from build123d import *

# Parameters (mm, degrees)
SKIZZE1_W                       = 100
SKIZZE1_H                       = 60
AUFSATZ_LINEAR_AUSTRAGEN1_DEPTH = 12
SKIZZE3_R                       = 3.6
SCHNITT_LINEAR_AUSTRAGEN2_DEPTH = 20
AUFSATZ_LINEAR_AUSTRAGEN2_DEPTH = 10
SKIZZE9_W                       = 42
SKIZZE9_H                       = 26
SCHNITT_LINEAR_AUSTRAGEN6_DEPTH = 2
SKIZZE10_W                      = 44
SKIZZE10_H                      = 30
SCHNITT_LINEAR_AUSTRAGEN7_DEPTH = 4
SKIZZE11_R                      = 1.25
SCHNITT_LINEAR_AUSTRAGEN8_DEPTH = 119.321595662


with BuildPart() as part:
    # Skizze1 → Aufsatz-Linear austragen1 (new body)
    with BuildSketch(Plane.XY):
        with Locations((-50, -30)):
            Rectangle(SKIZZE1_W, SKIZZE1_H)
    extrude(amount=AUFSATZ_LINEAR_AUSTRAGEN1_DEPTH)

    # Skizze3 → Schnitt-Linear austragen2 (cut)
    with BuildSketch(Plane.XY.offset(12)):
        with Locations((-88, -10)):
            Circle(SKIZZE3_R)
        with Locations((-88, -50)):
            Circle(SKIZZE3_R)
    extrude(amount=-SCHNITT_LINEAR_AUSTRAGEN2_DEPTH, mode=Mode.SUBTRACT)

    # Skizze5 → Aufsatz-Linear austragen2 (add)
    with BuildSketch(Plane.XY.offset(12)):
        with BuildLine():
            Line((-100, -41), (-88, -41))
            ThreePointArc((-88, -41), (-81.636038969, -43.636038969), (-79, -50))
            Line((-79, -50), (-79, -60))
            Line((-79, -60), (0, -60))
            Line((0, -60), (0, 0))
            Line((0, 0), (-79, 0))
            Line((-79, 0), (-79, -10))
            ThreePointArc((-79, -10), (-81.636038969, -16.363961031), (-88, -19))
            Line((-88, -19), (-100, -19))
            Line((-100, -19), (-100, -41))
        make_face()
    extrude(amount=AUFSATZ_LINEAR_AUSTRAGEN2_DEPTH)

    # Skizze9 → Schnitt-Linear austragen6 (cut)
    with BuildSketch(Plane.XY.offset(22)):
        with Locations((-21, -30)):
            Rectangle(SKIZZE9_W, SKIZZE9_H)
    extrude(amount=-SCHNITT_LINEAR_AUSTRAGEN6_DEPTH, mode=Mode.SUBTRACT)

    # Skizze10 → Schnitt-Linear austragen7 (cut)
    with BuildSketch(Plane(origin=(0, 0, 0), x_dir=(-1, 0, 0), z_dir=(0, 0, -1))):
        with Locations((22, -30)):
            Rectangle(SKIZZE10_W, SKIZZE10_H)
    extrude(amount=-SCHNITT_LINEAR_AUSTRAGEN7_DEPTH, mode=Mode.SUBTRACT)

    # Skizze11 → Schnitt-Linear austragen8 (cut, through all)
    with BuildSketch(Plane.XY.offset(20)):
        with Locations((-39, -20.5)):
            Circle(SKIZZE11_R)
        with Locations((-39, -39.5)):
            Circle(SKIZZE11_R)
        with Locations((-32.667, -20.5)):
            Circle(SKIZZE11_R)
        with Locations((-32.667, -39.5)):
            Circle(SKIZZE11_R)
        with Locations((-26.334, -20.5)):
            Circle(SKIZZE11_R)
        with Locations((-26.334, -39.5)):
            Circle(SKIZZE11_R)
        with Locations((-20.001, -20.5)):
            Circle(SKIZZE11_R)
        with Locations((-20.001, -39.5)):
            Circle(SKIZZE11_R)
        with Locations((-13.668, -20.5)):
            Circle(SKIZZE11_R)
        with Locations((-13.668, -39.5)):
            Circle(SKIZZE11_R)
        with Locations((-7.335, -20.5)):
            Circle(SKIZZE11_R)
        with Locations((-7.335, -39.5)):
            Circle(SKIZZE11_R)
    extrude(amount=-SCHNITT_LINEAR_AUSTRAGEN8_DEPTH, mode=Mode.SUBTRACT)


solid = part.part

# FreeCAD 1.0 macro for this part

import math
import FreeCAD as App
import Part
import Sketcher
from FreeCAD import Vector
Q = App.Units.Quantity

doc = App.newDocument("Part")
body = doc.addObject("PartDesign::Body", "Body")

# Sketch on XY plane
sketch1 = body.newObject("Sketcher::SketchObject", "Sketch")
sketch1.AttachmentSupport = (doc.getObject("XY_Plane"), [""])
sketch1.MapMode = "FlatFace"
sketch1.addGeometry([
    Part.LineSegment(Vector(-100, 0, 0), Vector(-100, -60, 0)),
    Part.LineSegment(Vector(-100, -60, 0), Vector(0, -60, 0)),
    Part.LineSegment(Vector(0, -60, 0), Vector(0, 0, 0)),
    Part.LineSegment(Vector(0, 0, 0), Vector(-100, 0, 0)),
], False)
sketch1.addConstraint([
    Sketcher.Constraint("Coincident", 0, 2, 1, 1),
    Sketcher.Constraint("Coincident", 1, 2, 2, 1),
    Sketcher.Constraint("Coincident", 2, 2, 3, 1),
    Sketcher.Constraint("Coincident", 3, 2, 0, 1),
    Sketcher.Constraint("Vertical", 0),
    Sketcher.Constraint("Horizontal", 1),
    Sketcher.Constraint("Vertical", 2),
    Sketcher.Constraint("Horizontal", 3),
    Sketcher.Constraint("Coincident", 2, 2, -1, 1),
    Sketcher.Constraint("DistanceX", 1, 1, 1, 2, Q("100 mm")),
    Sketcher.Constraint("DistanceY", 0, 2, 0, 1, Q("60 mm")),
])
pad1 = body.newObject("PartDesign::Pad", "Pad")
pad1.Profile = sketch1
pad1.Length = 12

# Sketch on XY plane
sketch2 = body.newObject("Sketcher::SketchObject", "Sketch001")
sketch2.AttachmentSupport = (doc.getObject("XY_Plane"), [""])
sketch2.MapMode = "FlatFace"
sketch2.AttachmentOffset = App.Placement(Vector(0, 0, 12), App.Rotation())
sketch2.addGeometry([
    Part.Circle(Vector(-88, -10, 0), Vector(0, 0, 1), 3.6),
    Part.Circle(Vector(-88, -50, 0), Vector(0, 0, 1), 3.6),
], False)
sketch2.addConstraint([
    Sketcher.Constraint("Equal", 0, 1),
    Sketcher.Constraint("Vertical", 0, 3, 1, 3),
    Sketcher.Constraint("Diameter", 0, Q("7.2 mm")),
    Sketcher.Constraint("DistanceX", 0, 3, -1, 1, Q("88 mm")),
    Sketcher.Constraint("DistanceY", 0, 3, -1, 1, Q("10 mm")),
    Sketcher.Constraint("DistanceY", 1, 3, -1, 1, Q("50 mm")),
])
pocket1 = body.newObject("PartDesign::Pocket", "Pocket")
pocket1.Profile = sketch2
pocket1.Length = 20

# Sketch on XY plane
sketch3 = body.newObject("Sketcher::SketchObject", "Sketch002")
sketch3.AttachmentSupport = (doc.getObject("XY_Plane"), [""])
sketch3.MapMode = "FlatFace"
sketch3.AttachmentOffset = App.Placement(Vector(0, 0, 12), App.Rotation())
sketch3.addGeometry([
    Part.LineSegment(Vector(-100, -41, 0), Vector(-88, -41, 0)),  # 0
    Part.ArcOfCircle(Part.Circle(Vector(-88, -50, 0), Vector(0, 0, 1), 9), math.radians(0), math.radians(90)),  # 1
    Part.LineSegment(Vector(-79, -50, 0), Vector(-79, -60, 0)),  # 2
    Part.LineSegment(Vector(-79, -60, 0), Vector(0, -60, 0)),  # 3
    Part.LineSegment(Vector(0, -60, 0), Vector(0, 0, 0)),  # 4
    Part.LineSegment(Vector(0, 0, 0), Vector(-79, 0, 0)),  # 5
    Part.LineSegment(Vector(-79, 0, 0), Vector(-79, -10, 0)),  # 6
    Part.ArcOfCircle(Part.Circle(Vector(-88, -10, 0), Vector(0, 0, 1), 9), math.radians(-90), math.radians(0)),  # 7
    Part.LineSegment(Vector(-88, -19, 0), Vector(-100, -19, 0)),  # 8
    Part.LineSegment(Vector(-100, -19, 0), Vector(-100, -41, 0)),  # 9
], False)
sketch3.addConstraint([
    Sketcher.Constraint("Tangent", 0, 2, 1, 2),
    Sketcher.Constraint("Tangent", 1, 1, 2, 1),
    Sketcher.Constraint("Coincident", 2, 2, 3, 1),
    Sketcher.Constraint("Coincident", 3, 2, 4, 1),
    Sketcher.Constraint("Coincident", 4, 2, 5, 1),
    Sketcher.Constraint("Coincident", 5, 2, 6, 1),
    Sketcher.Constraint("Tangent", 6, 2, 7, 2),
    Sketcher.Constraint("Tangent", 7, 1, 8, 1),
    Sketcher.Constraint("Coincident", 8, 2, 9, 1),
    Sketcher.Constraint("Coincident", 9, 2, 0, 1),
    Sketcher.Constraint("Horizontal", 0),
    Sketcher.Constraint("Vertical", 2),
    Sketcher.Constraint("Horizontal", 3),
    Sketcher.Constraint("Vertical", 4),
    Sketcher.Constraint("Horizontal", 5),
    Sketcher.Constraint("Vertical", 6),
    Sketcher.Constraint("Horizontal", 8),
    Sketcher.Constraint("Vertical", 9),
    Sketcher.Constraint("Coincident", 4, 2, -1, 1),
    Sketcher.Constraint("Equal", 1, 7),
    Sketcher.Constraint("Vertical", 1, 3, 7, 3),
    Sketcher.Constraint("Equal", 2, 6),
    Sketcher.Constraint("Radius", 1, Q("9 mm")),
    Sketcher.Constraint("DistanceX", 0, 1, 0, 2, Q("12 mm")),
    Sketcher.Constraint("DistanceX", 3, 1, 3, 2, Q("79 mm")),
    Sketcher.Constraint("DistanceY", 2, 2, 2, 1, Q("10 mm")),
    Sketcher.Constraint("DistanceY", 4, 1, 4, 2, Q("60 mm")),
])
pad2 = body.newObject("PartDesign::Pad", "Pad001")
pad2.Profile = sketch3
pad2.Length = 10

# Sketch on XY plane
sketch4 = body.newObject("Sketcher::SketchObject", "Sketch003")
sketch4.AttachmentSupport = (doc.getObject("XY_Plane"), [""])
sketch4.MapMode = "FlatFace"
sketch4.AttachmentOffset = App.Placement(Vector(0, 0, 22), App.Rotation())
sketch4.addGeometry([
    Part.LineSegment(Vector(-42, -17, 0), Vector(-42, -43, 0)),
    Part.LineSegment(Vector(-42, -43, 0), Vector(0, -43, 0)),
    Part.LineSegment(Vector(0, -43, 0), Vector(0, -17, 0)),
    Part.LineSegment(Vector(0, -17, 0), Vector(-42, -17, 0)),
], False)
sketch4.addConstraint([
    Sketcher.Constraint("Coincident", 0, 2, 1, 1),
    Sketcher.Constraint("Coincident", 1, 2, 2, 1),
    Sketcher.Constraint("Coincident", 2, 2, 3, 1),
    Sketcher.Constraint("Coincident", 3, 2, 0, 1),
    Sketcher.Constraint("Vertical", 0),
    Sketcher.Constraint("Horizontal", 1),
    Sketcher.Constraint("Vertical", 2),
    Sketcher.Constraint("Horizontal", 3),
    Sketcher.Constraint("PointOnObject", 1, 2, -2),
    Sketcher.Constraint("DistanceX", 1, 1, 1, 2, Q("42 mm")),
    Sketcher.Constraint("DistanceY", 0, 2, 0, 1, Q("26 mm")),
    Sketcher.Constraint("DistanceY", 0, 2, -1, 1, Q("43 mm")),
])
pocket2 = body.newObject("PartDesign::Pocket", "Pocket001")
pocket2.Profile = sketch4
pocket2.Length = 2

# Sketch on XY plane
sketch5 = body.newObject("Sketcher::SketchObject", "Sketch004")
sketch5.AttachmentSupport = (doc.getObject("XY_Plane"), [""])
sketch5.MapMode = "FlatFace"
sketch5.addGeometry([
    Part.LineSegment(Vector(0, -15, 0), Vector(0, -45, 0)),
    Part.LineSegment(Vector(0, -45, 0), Vector(-44, -45, 0)),
    Part.LineSegment(Vector(-44, -45, 0), Vector(-44, -15, 0)),
    Part.LineSegment(Vector(-44, -15, 0), Vector(0, -15, 0)),
], False)
sketch5.addConstraint([
    Sketcher.Constraint("Coincident", 0, 2, 1, 1),
    Sketcher.Constraint("Coincident", 1, 2, 2, 1),
    Sketcher.Constraint("Coincident", 2, 2, 3, 1),
    Sketcher.Constraint("Coincident", 3, 2, 0, 1),
    Sketcher.Constraint("Vertical", 0),
    Sketcher.Constraint("Horizontal", 1),
    Sketcher.Constraint("Vertical", 2),
    Sketcher.Constraint("Horizontal", 3),
    Sketcher.Constraint("PointOnObject", 0, 2, -2),
    Sketcher.Constraint("DistanceX", 1, 2, 1, 1, Q("44 mm")),
    Sketcher.Constraint("DistanceY", 0, 2, 0, 1, Q("30 mm")),
    Sketcher.Constraint("DistanceY", 0, 2, -1, 1, Q("45 mm")),
])
pocket3 = body.newObject("PartDesign::Pocket", "Pocket002")
pocket3.Profile = sketch5
pocket3.Length = 4
pocket3.Reversed = True

# Sketch on XY plane
sketch6 = body.newObject("Sketcher::SketchObject", "Sketch005")
sketch6.AttachmentSupport = (doc.getObject("XY_Plane"), [""])
sketch6.MapMode = "FlatFace"
sketch6.AttachmentOffset = App.Placement(Vector(0, 0, 20), App.Rotation())
sketch6.addGeometry([
    Part.Circle(Vector(-39, -20.5, 0), Vector(0, 0, 1), 1.2),  # 0
    Part.Circle(Vector(-39, -39.5, 0), Vector(0, 0, 1), 1.2),  # 1
    Part.Circle(Vector(-32.7, -20.5, 0), Vector(0, 0, 1), 1.2),  # 2
    Part.Circle(Vector(-32.7, -39.5, 0), Vector(0, 0, 1), 1.2),  # 3
    Part.Circle(Vector(-26.3, -20.5, 0), Vector(0, 0, 1), 1.2),  # 4
    Part.Circle(Vector(-26.3, -39.5, 0), Vector(0, 0, 1), 1.2),  # 5
    Part.Circle(Vector(-20, -20.5, 0), Vector(0, 0, 1), 1.2),  # 6
    Part.Circle(Vector(-20, -39.5, 0), Vector(0, 0, 1), 1.2),  # 7
    Part.Circle(Vector(-13.7, -20.5, 0), Vector(0, 0, 1), 1.2),  # 8
    Part.Circle(Vector(-13.7, -39.5, 0), Vector(0, 0, 1), 1.2),  # 9
    Part.Circle(Vector(-7.3, -20.5, 0), Vector(0, 0, 1), 1.2),  # 10
    Part.Circle(Vector(-7.3, -39.5, 0), Vector(0, 0, 1), 1.2),  # 11
], False)
sketch6.addConstraint([
    Sketcher.Constraint("Equal", 0, 1),
    Sketcher.Constraint("Equal", 1, 2),
    Sketcher.Constraint("Equal", 2, 3),
    Sketcher.Constraint("Equal", 3, 4),
    Sketcher.Constraint("Equal", 4, 5),
    Sketcher.Constraint("Equal", 5, 6),
    Sketcher.Constraint("Equal", 6, 7),
    Sketcher.Constraint("Equal", 7, 8),
    Sketcher.Constraint("Equal", 8, 9),
    Sketcher.Constraint("Equal", 9, 10),
    Sketcher.Constraint("Equal", 10, 11),
    Sketcher.Constraint("Horizontal", 0, 3, 2, 3),
    Sketcher.Constraint("Horizontal", 1, 3, 3, 3),
    Sketcher.Constraint("Horizontal", 2, 3, 4, 3),
    Sketcher.Constraint("Horizontal", 3, 3, 5, 3),
    Sketcher.Constraint("Horizontal", 4, 3, 6, 3),
    Sketcher.Constraint("Horizontal", 5, 3, 7, 3),
    Sketcher.Constraint("Horizontal", 6, 3, 8, 3),
    Sketcher.Constraint("Horizontal", 7, 3, 9, 3),
    Sketcher.Constraint("Horizontal", 8, 3, 10, 3),
    Sketcher.Constraint("Horizontal", 9, 3, 11, 3),
    Sketcher.Constraint("Vertical", 0, 3, 1, 3),
    Sketcher.Constraint("Vertical", 2, 3, 3, 3),
    Sketcher.Constraint("Vertical", 4, 3, 5, 3),
    Sketcher.Constraint("Vertical", 6, 3, 7, 3),
    Sketcher.Constraint("Vertical", 8, 3, 9, 3),
    Sketcher.Constraint("Vertical", 10, 3, 11, 3),
    Sketcher.Constraint("Diameter", 0, Q("2.5 mm")),
    Sketcher.Constraint("DistanceX", 0, 3, -1, 1, Q("39 mm")),
    Sketcher.Constraint("DistanceY", 1, 3, 0, 3, Q("19 mm")),
    Sketcher.Constraint("DistanceY", 0, 3, -1, 1, Q("20.5 mm")),
    Sketcher.Constraint("DistanceX", 2, 3, -1, 1, Q("32.667 mm")),
    Sketcher.Constraint("DistanceX", 4, 3, -1, 1, Q("26.334 mm")),
    Sketcher.Constraint("DistanceX", 6, 3, -1, 1, Q("20.001 mm")),
    Sketcher.Constraint("DistanceX", 8, 3, -1, 1, Q("13.668 mm")),
    Sketcher.Constraint("DistanceX", 10, 3, -1, 1, Q("7.335 mm")),
])
pocket4 = body.newObject("PartDesign::Pocket", "Pocket003")
pocket4.Profile = sketch6
pocket4.Type = "ThroughAll"

doc.recompute()
